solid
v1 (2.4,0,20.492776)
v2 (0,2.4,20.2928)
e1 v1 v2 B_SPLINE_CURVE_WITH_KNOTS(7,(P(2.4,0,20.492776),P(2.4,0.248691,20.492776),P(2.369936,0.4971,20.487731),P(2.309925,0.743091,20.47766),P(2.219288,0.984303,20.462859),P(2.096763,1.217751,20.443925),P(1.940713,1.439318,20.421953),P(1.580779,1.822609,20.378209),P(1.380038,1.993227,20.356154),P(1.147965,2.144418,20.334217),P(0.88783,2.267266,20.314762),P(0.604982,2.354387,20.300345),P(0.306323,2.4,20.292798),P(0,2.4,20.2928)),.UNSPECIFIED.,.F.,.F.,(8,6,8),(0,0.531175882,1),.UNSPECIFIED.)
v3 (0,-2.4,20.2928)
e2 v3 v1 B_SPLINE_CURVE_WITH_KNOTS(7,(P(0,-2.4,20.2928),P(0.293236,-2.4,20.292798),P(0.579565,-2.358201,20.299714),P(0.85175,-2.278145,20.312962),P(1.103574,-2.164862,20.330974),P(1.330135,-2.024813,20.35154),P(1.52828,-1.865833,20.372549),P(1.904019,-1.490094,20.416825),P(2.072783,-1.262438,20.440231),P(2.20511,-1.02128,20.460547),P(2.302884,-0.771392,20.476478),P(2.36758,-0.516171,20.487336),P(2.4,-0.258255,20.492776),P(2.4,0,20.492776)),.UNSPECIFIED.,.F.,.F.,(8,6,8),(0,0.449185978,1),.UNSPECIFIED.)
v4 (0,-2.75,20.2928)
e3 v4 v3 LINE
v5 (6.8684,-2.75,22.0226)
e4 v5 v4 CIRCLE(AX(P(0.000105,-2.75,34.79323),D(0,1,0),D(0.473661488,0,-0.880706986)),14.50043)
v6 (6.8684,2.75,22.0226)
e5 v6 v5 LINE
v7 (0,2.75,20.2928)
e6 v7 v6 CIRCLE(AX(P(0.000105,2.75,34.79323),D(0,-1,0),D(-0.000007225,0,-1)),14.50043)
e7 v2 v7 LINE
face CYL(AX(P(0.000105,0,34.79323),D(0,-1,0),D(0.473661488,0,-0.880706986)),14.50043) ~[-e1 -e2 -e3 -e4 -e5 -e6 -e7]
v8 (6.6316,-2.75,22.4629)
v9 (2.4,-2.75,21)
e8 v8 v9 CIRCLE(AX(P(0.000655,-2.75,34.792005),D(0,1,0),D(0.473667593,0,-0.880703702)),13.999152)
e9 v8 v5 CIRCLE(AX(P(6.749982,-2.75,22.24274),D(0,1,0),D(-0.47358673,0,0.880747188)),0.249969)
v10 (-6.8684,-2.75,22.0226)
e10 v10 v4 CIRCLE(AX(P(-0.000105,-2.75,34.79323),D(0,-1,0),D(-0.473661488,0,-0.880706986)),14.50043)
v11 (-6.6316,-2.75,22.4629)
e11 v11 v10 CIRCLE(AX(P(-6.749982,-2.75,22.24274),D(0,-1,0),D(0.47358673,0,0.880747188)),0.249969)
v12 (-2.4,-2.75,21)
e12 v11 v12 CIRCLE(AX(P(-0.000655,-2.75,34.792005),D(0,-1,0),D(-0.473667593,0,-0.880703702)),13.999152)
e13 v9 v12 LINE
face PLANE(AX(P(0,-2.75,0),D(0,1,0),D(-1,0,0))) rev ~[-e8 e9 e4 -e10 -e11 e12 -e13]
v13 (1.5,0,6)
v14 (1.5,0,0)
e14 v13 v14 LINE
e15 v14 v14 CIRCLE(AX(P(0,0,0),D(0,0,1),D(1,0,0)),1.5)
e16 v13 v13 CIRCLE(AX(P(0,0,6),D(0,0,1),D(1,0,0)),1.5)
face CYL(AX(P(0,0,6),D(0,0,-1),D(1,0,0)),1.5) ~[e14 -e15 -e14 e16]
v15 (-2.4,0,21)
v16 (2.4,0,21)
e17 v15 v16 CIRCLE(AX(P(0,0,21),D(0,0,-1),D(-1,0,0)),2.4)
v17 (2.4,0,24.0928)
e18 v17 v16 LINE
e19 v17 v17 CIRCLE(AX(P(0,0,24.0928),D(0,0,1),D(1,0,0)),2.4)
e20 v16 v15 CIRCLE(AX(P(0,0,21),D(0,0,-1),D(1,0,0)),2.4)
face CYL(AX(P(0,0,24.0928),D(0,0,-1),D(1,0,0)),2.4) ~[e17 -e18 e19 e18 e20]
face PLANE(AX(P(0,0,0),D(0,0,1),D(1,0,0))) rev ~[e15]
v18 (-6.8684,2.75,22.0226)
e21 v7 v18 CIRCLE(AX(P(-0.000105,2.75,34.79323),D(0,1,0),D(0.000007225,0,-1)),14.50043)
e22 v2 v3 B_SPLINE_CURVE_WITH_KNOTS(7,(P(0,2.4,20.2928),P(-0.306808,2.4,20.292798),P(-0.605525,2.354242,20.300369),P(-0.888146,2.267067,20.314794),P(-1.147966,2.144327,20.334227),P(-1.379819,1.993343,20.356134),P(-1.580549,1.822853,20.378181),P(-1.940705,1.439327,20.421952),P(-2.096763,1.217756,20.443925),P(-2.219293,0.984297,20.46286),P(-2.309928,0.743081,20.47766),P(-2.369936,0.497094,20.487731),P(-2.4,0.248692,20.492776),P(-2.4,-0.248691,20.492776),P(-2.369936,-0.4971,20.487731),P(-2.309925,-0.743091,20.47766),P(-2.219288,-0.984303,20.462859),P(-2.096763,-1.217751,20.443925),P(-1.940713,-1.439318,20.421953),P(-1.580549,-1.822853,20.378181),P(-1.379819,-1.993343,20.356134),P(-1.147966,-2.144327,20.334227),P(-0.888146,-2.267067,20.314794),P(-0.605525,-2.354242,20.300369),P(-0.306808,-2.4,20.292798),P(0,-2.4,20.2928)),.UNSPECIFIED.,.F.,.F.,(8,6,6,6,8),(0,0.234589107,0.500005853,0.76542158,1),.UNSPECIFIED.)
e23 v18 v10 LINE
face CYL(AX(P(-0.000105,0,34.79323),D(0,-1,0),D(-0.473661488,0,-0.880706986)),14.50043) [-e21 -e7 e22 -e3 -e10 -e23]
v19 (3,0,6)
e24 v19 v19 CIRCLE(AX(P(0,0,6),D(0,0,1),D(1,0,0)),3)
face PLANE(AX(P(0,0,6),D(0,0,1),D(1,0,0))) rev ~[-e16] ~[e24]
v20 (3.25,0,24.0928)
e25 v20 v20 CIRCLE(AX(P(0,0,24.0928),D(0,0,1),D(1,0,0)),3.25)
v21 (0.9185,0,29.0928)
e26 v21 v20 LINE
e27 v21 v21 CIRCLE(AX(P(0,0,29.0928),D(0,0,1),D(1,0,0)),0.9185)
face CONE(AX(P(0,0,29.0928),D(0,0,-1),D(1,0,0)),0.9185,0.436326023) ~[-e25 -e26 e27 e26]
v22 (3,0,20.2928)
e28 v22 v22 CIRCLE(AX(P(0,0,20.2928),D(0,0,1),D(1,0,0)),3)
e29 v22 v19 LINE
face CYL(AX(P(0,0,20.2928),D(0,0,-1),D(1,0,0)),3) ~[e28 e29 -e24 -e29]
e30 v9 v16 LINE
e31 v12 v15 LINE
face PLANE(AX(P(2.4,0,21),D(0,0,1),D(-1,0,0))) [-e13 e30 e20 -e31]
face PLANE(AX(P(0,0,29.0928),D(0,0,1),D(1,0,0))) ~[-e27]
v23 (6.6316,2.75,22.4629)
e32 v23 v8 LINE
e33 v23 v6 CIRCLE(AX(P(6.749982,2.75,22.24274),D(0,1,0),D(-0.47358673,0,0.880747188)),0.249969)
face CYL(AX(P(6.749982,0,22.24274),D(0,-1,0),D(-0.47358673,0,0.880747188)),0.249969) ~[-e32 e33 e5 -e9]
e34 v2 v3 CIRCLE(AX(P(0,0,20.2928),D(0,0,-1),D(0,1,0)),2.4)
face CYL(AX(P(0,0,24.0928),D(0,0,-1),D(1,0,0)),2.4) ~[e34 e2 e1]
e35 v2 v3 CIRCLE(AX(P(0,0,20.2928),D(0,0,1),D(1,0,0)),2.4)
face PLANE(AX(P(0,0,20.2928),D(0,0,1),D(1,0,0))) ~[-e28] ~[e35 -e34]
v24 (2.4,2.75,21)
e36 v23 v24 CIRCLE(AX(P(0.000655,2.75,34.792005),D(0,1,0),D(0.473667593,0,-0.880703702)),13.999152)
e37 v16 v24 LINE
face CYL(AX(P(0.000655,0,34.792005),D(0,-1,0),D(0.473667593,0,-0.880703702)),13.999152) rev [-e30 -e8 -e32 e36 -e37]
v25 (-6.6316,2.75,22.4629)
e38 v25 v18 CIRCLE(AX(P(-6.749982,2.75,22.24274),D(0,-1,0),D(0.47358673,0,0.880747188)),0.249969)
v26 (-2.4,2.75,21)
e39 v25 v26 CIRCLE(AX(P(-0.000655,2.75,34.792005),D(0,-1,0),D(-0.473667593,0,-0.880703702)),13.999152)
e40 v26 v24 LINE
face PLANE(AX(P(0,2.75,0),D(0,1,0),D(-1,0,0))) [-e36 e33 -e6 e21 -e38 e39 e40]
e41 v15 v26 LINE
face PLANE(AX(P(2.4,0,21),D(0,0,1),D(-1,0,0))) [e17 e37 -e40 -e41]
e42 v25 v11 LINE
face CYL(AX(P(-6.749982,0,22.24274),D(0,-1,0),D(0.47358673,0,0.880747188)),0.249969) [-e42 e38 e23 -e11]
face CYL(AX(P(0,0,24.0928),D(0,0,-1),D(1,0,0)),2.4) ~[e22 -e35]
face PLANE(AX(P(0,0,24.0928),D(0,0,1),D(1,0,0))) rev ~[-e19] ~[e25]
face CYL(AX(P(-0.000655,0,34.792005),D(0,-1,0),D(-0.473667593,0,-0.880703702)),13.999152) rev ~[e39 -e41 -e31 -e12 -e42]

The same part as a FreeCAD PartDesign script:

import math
import FreeCAD as App
import Part
import Sketcher
from FreeCAD import Vector
Q = App.Units.Quantity

doc = App.newDocument("Part")
params = doc.addObject("Spreadsheet::Sheet", "Params")
for row, (alias, value) in enumerate([
    ("sketch1_height", "6 mm"),
    ("sketch1_width", "0.6 mm"),
    ("sketch1_width2", "0.85 mm"),
    ("revolution_angle", "360 deg"),
    ("sketch2_radius", "0.25 mm"),
    ("sketch2_width", "2.4 mm"),
    ("pad1_length", "5.5 mm"),
], start=1):
    params.set(f"A{row}", alias)
    params.set(f"B{row}", "=" + value)
    params.setAlias(f"B{row}", alias)

body = doc.addObject("PartDesign::Body", "Body")

sketch1 = body.newObject("Sketcher::SketchObject", "Sketch")
sketch1.AttachmentSupport = (doc.getObject("XZ_Plane"), [""])
sketch1.MapMode = "FlatFace"
sketch1.addGeometry([
    Part.LineSegment(Vector(1.5, 0, 0), Vector(0, 0, 0)),
    Part.LineSegment(Vector(0, 0, 0), Vector(0, 29.1, 0)),
    Part.LineSegment(Vector(0, 29.1, 0), Vector(0.9, 29.1, 0)),
    Part.LineSegment(Vector(0.9, 29.1, 0), Vector(3.2, 24.1, 0)),
    Part.LineSegment(Vector(3.2, 24.1, 0), Vector(2.4, 24.1, 0)),
    Part.LineSegment(Vector(2.4, 24.1, 0), Vector(2.4, 20.3, 0)),
    Part.LineSegment(Vector(2.4, 20.3, 0), Vector(3, 20.3, 0)),
    Part.LineSegment(Vector(3, 20.3, 0), Vector(3, 6, 0)),
    Part.LineSegment(Vector(3, 6, 0), Vector(1.5, 6, 0)),
    Part.LineSegment(Vector(1.5, 6, 0), Vector(1.5, 0, 0)),
], False)
sketch1.addConstraint([
    Sketcher.Constraint("Coincident", 0, 2, 1, 1),
    Sketcher.Constraint("Coincident", 1, 2, 2, 1),
    Sketcher.Constraint("Coincident", 2, 2, 3, 1),
    Sketcher.Constraint("Coincident", 3, 2, 4, 1),
    Sketcher.Constraint("Coincident", 4, 2, 5, 1),
    Sketcher.Constraint("Coincident", 5, 2, 6, 1),
    Sketcher.Constraint("Coincident", 6, 2, 7, 1),
    Sketcher.Constraint("Coincident", 7, 2, 8, 1),
    Sketcher.Constraint("Coincident", 8, 2, 9, 1),
    Sketcher.Constraint("Coincident", 9, 2, 0, 1),
    Sketcher.Constraint("Horizontal", 0),
    Sketcher.Constraint("Vertical", 1),
    Sketcher.Constraint("Horizontal", 2),
    Sketcher.Constraint("Horizontal", 4),
    Sketcher.Constraint("Vertical", 5),
    Sketcher.Constraint("Horizontal", 6),
    Sketcher.Constraint("Vertical", 7),
    Sketcher.Constraint("Horizontal", 8),
    Sketcher.Constraint("Vertical", 9),
    Sketcher.Constraint("Coincident", 0, 2, -1, 1),
    Sketcher.Constraint("Equal", 0, 8),
    Sketcher.Constraint("DistanceY", 9, 2, 9, 1, 6.0),
    Sketcher.Constraint("DistanceX", -1, 1, 6, 2, 3.0),
    Sketcher.Constraint("DistanceY", 3, 2, 2, 2, 5.0),
    Sketcher.Constraint("DistanceY", 5, 2, 2, 2, 8.8),
    Sketcher.Constraint("Angle", 3, Q("-65.0004 deg")),
    Sketcher.Constraint("DistanceX", 6, 1, 6, 2, 0.6),
    Sketcher.Constraint("DistanceX", 4, 2, 4, 1, 0.85),
    Sketcher.Constraint("DistanceY", 1, 1, 1, 2, 29.0928),
])
sketch1.setExpression("Constraints[21]", "Params.sketch1_height")
sketch1.setExpression("Constraints[26]", "Params.sketch1_width")
sketch1.setExpression("Constraints[27]", "Params.sketch1_width2")
revolution = body.newObject("PartDesign::Revolution", "Revolution")
revolution.Profile = sketch1
revolution.ReferenceAxis = (sketch1, ["V_Axis"])
revolution.setExpression("Angle", "Params.revolution_angle")

sketch2 = body.newObject("Sketcher::SketchObject", "Sketch001")
sketch2.AttachmentSupport = (doc.getObject("XZ_Plane"), [""])
sketch2.MapMode = "FlatFace"
sketch2.addGeometry([
    Part.LineSegment(Vector(0, 20.29, 0), Vector(0, 21, 0)),
    Part.LineSegment(Vector(0, 21, 0), Vector(2.4, 21, 0)),
    Part.ArcOfCircle(Part.Circle(Vector(0, 34.79, 0), Vector(0, 0, 1), 14), math.radians(-80.13), math.radians(-61.73)),
    Part.ArcOfCircle(Part.Circle(Vector(6.75, 22.24, 0), Vector(0, 0, 1), 0.25), math.radians(-62), math.radians(118)),
    Part.ArcOfCircle(Part.Circle(Vector(0, 34.79, 0), Vector(0, 0, 1), 14.5), math.radians(-90), math.radians(-62)),
], False)
sketch2.addConstraint([
    Sketcher.Constraint("Coincident", 0, 2, 1, 1),
    Sketcher.Constraint("Coincident", 1, 2, 2, 1),
    Sketcher.Constraint("Tangent", 2, 2, 3, 2),
    Sketcher.Constraint("Tangent", 3, 1, 4, 2),
    Sketcher.Constraint("Coincident", 4, 1, 0, 1),
    Sketcher.Constraint("Vertical", 0),
    Sketcher.Constraint("Horizontal", 1),
    Sketcher.Constraint("PointOnObject", 4, 3, -2),
    Sketcher.Constraint("PointOnObject", 0, 2, -2),
    Sketcher.Constraint("Radius", 3, 0.25),
    Sketcher.Constraint("DistanceX", 1, 1, 1, 2, 2.4),
    Sketcher.Constraint("DistanceY", -1, 1, 0, 2, 21.0),
    Sketcher.Constraint("Radius", 2, 13.9992),
    Sketcher.Constraint("Radius", 4, 14.5007),
    Sketcher.Constraint("DistanceX", -1, 1, 3, 3, 6.75),
    Sketcher.Constraint("DistanceY", 0, 1, 0, 2, 0.7072),
])
sketch2.setExpression("Constraints[9]", "Params.sketch2_radius")
sketch2.setExpression("Constraints[10]", "Params.sketch2_width")
pad1 = body.newObject("PartDesign::Pad", "Pad")
pad1.Profile = sketch2
pad1.setExpression("Length", "Params.pad1_length")
pad1.Midplane = True
doc.recompute()

mirrored = body.newObject("PartDesign::Mirrored", "Mirrored")
mirrored.Originals = [pad1]
mirrored.MirrorPlane = (doc.getObject("YZ_Plane"), [""])
body.Tip = mirrored

doc.recompute()
